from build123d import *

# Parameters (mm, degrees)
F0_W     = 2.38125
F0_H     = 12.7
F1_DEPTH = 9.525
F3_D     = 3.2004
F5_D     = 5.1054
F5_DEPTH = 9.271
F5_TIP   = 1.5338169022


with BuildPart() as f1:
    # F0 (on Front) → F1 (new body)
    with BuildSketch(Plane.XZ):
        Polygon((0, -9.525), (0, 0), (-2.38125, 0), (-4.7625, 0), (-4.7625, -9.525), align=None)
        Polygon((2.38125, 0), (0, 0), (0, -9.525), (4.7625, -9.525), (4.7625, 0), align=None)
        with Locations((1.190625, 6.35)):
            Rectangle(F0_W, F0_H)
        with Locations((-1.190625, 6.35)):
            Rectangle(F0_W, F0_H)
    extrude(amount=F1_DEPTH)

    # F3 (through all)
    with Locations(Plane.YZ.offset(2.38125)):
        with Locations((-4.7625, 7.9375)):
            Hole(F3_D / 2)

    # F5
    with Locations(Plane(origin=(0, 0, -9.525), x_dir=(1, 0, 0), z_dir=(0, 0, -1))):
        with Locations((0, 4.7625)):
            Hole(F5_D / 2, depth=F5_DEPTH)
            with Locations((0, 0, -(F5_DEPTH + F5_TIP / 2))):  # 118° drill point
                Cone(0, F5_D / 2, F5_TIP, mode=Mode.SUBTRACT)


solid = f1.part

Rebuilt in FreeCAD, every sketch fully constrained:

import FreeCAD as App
import Part
import Sketcher

V = App.Vector
Q = App.Units.Quantity


def add_polygon(sketch, points):
    """Adds a closed chain of lines whose ends are joined by coincident constraints."""
    first, n = sketch.GeometryCount, len(points)
    for a, b in zip(points, points[1:] + points[:1]):
        sketch.addGeometry(Part.LineSegment(App.Vector(*a, 0), App.Vector(*b, 0)), False)
    for i in range(n):
        sketch.addConstraint(Sketcher.Constraint("Coincident", first + i, 2, first + (i + 1) % n, 1))

doc = App.newDocument("Part")
body = doc.addObject("PartDesign::Body", "Body")

# Sketch on XZ plane
sketch1 = body.newObject("Sketcher::SketchObject", "Sketch")
sketch1.AttachmentSupport = (doc.getObject("XZ_Plane"), [""])
sketch1.MapMode = "FlatFace"
add_polygon(sketch1, [(-4.8, 0), (-4.8, -9.5), (4.8, -9.5), (4.8, 0), (2.4, 0), (2.4, 12.7), (-2.4, 12.7), (-2.4, 0)])  # lines 0-7
sketch1.addConstraint([
    Sketcher.Constraint("Vertical", 0),
    Sketcher.Constraint("Horizontal", 1),
    Sketcher.Constraint("Vertical", 2),
    Sketcher.Constraint("Horizontal", 3),
    Sketcher.Constraint("Vertical", 4),
    Sketcher.Constraint("Horizontal", 5),
    Sketcher.Constraint("Vertical", 6),
    Sketcher.Constraint("Horizontal", 7),
    Sketcher.Constraint("Symmetric", 3, 2, 6, 2, -1, 1),
    Sketcher.Constraint("Symmetric", 2, 2, 7, 2, -2),
    Sketcher.Constraint("Equal", 1, 0),
    Sketcher.Constraint("DistanceY", 4, 1, 4, 2, Q("0.5 in")),
    Sketcher.Constraint("DistanceX", 1, 1, 1, 2, Q("0.375 in")),
    Sketcher.Constraint("DistanceX", 3, 2, 3, 1, Q("0.09375 in")),
])
pad1 = body.newObject("PartDesign::Pad", "Pad")
pad1.Profile = sketch1
pad1.Length = Q("0.375 in")

# Sketch on YZ plane
sketch2 = body.newObject("Sketcher::SketchObject", "Sketch001")
sketch2.AttachmentSupport = (doc.getObject("YZ_Plane"), [""])
sketch2.MapMode = "FlatFace"
sketch2.AttachmentOffset = App.Placement(V(0, 0, 0.09375 * 25.4), App.Rotation())
sketch2.addGeometry(Part.Circle(V(-4.8, 7.9, 0), V(0, 0, 1), 1.6), False)
sketch2.addConstraint([
    Sketcher.Constraint("Diameter", 0, Q("0.126 in")),
    Sketcher.Constraint("DistanceX", 0, 3, -1, 1, Q("0.1875 in")),
    Sketcher.Constraint("DistanceY", -1, 1, 0, 3, Q("0.3125 in")),
])
doc.recompute()
hole = body.newObject("PartDesign::Hole", "Hole")
hole.Profile = sketch2
hole.ThreadType = "None"
hole.Diameter = Q("0.126 in")
hole.DepthType = "ThroughAll"

# Sketch on XY plane
sketch3 = body.newObject("Sketcher::SketchObject", "Sketch002")
sketch3.AttachmentSupport = (doc.getObject("XY_Plane"), [""])
sketch3.MapMode = "FlatFace"
sketch3.AttachmentOffset = App.Placement(V(0, 0, -0.375 * 25.4), App.Rotation())
sketch3.addGeometry(Part.Circle(V(0, -4.8, 0), V(0, 0, 1), 2.6), False)
sketch3.addConstraint([
    Sketcher.Constraint("PointOnObject", 0, 3, -2),
    Sketcher.Constraint("Diameter", 0, Q("0.201 in")),
    Sketcher.Constraint("DistanceY", 0, 3, -1, 1, Q("0.1875 in")),
])
doc.recompute()
hole2 = body.newObject("PartDesign::Hole", "Hole001")
hole2.Profile = sketch3
hole2.ThreadType = "None"
hole2.Diameter = Q("0.201 in")
hole2.DepthType = "Dimension"
hole2.Depth = Q("0.365 in")
hole2.DrillPoint = "Angled"
hole2.DrillPointAngle = 118
hole2.Reversed = True

doc.recompute()
